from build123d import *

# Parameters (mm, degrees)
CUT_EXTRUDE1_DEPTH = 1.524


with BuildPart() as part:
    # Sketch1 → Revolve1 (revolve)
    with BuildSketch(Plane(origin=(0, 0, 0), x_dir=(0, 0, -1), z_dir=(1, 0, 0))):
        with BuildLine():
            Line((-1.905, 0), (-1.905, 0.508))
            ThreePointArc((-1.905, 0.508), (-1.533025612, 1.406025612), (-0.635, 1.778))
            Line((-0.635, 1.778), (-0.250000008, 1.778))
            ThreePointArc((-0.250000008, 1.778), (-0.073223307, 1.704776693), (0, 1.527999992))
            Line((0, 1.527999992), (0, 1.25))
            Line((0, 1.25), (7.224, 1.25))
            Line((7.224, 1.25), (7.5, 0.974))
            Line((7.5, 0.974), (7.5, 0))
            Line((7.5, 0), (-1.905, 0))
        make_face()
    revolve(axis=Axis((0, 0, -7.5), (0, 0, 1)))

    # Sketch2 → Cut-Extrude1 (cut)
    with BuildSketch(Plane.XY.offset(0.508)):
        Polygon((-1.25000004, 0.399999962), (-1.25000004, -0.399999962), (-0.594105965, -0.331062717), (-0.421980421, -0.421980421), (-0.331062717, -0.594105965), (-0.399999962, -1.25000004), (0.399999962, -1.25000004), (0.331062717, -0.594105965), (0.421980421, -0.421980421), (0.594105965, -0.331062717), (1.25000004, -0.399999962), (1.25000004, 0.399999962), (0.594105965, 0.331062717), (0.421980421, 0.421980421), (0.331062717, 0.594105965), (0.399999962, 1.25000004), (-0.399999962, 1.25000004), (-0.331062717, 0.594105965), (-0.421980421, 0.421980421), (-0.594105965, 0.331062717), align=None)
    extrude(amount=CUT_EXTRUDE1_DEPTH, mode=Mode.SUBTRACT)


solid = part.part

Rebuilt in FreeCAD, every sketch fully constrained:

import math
import FreeCAD as App
import Part
import Sketcher
Q = App.Units.Quantity


def add_polygon(sketch, points):
    """Adds a closed chain of lines whose ends are joined by coincident constraints."""
    first, n = sketch.GeometryCount, len(points)
    for a, b in zip(points, points[1:] + points[:1]):
        sketch.addGeometry(Part.LineSegment(App.Vector(*a, 0), App.Vector(*b, 0)), False)
    for i in range(n):
        sketch.addConstraint(Sketcher.Constraint("Coincident", first + i, 2, first + (i + 1) % n, 1))

doc = App.newDocument("Part")
params = doc.addObject("Spreadsheet::Sheet", "Params")
for row, (alias, value) in enumerate([
    ("sketch1_radius", "0.05 in"),
    ("sketch1_width", "0.02 in"),
    ("revolution_angle", "360 deg"),
    ("pocket1_length", "0.06 in"),
], start=1):
    params.set(f"A{row}", alias)
    params.set(f"B{row}", "=" + value)
    params.setAlias(f"B{row}", alias)

body = doc.addObject("PartDesign::Body", "Body")

# Sketch on YZ plane
sketch1 = body.newObject("Sketcher::SketchObject", "Sketch")
sketch1.AttachmentSupport = (doc.getObject("YZ_Plane"), [""])
sketch1.MapMode = "FlatFace"
sketch1.addGeometry([
    Part.LineSegment(App.Vector(0.51, 1.91, 0), App.Vector(0, 1.91, 0)),  # 0
    Part.LineSegment(App.Vector(0, 1.91, 0), App.Vector(0, -7.5, 0)),  # 1
    Part.LineSegment(App.Vector(0, -7.5, 0), App.Vector(0.97, -7.5, 0)),  # 2
    Part.LineSegment(App.Vector(0.97, -7.5, 0), App.Vector(1.25, -7.22, 0)),  # 3
    Part.LineSegment(App.Vector(1.25, -7.22, 0), App.Vector(1.25, 0, 0)),  # 4
    Part.LineSegment(App.Vector(1.25, 0, 0), App.Vector(1.53, 0, 0)),  # 5
    Part.ArcOfCircle(Part.Circle(App.Vector(1.53, 0.25, 0), App.Vector(0, 0, 1), 0.25), math.radians(-90), math.radians(0)),  # 6
    Part.LineSegment(App.Vector(1.78, 0.25, 0), App.Vector(1.78, 0.64, 0)),  # 7
    Part.ArcOfCircle(Part.Circle(App.Vector(0.51, 0.64, 0), App.Vector(0, 0, 1), 1.27), math.radians(0), math.radians(90)),  # 8
], False)
sketch1.addConstraint([
    Sketcher.Constraint("Coincident", 0, 2, 1, 1),
    Sketcher.Constraint("Coincident", 1, 2, 2, 1),
    Sketcher.Constraint("Coincident", 2, 2, 3, 1),
    Sketcher.Constraint("Coincident", 3, 2, 4, 1),
    Sketcher.Constraint("Coincident", 4, 2, 5, 1),
    Sketcher.Constraint("Tangent", 5, 2, 6, 1),
    Sketcher.Constraint("Tangent", 6, 2, 7, 1),
    Sketcher.Constraint("Tangent", 7, 2, 8, 1),
    Sketcher.Constraint("Tangent", 8, 2, 0, 1),
    Sketcher.Constraint("Horizontal", 0),
    Sketcher.Constraint("Vertical", 1),
    Sketcher.Constraint("Horizontal", 2),
    Sketcher.Constraint("Vertical", 4),
    Sketcher.Constraint("Horizontal", 5),
    Sketcher.Constraint("Vertical", 7),
    Sketcher.Constraint("PointOnObject", 0, 2, -2),
    Sketcher.Constraint("PointOnObject", 4, 2, -1),
    Sketcher.Constraint("Radius", 8, Q("0.05 in")),
    Sketcher.Constraint("Angle", 3, Q("45 deg")),
    Sketcher.Constraint("DistanceX", 0, 2, 0, 1, Q("0.02 in")),
    Sketcher.Constraint("Radius", 6, 0.25),
    Sketcher.Constraint("DistanceY", -1, 1, 8, 3, Q("0.025 in")),
    Sketcher.Constraint("DistanceX", 2, 1, 2, 2, 0.974),
    Sketcher.Constraint("DistanceX", 5, 1, 5, 2, 0.278),
    Sketcher.Constraint("DistanceY", 1, 2, 1, 1, 9.405),
])
sketch1.setExpression("Constraints[17]", "Params.sketch1_radius")
sketch1.setExpression("Constraints[19]", "Params.sketch1_width")
revolution = body.newObject("PartDesign::Revolution", "Revolution")
revolution.Profile = sketch1
revolution.ReferenceAxis = (sketch1, ["V_Axis"])
revolution.setExpression("Angle", "Params.revolution_angle")

# Sketch on XY plane
sketch2 = body.newObject("Sketcher::SketchObject", "Sketch001")
sketch2.AttachmentSupport = (doc.getObject("XY_Plane"), [""])
sketch2.MapMode = "FlatFace"
sketch2.AttachmentOffset = App.Placement(App.Vector(0, 0, 0.02 * 25.4), App.Rotation())
add_polygon(sketch2, [(-1.25, 0.4), (-1.25, -0.4), (-0.59, -0.33), (-0.42, -0.42), (-0.33, -0.59), (-0.4, -1.25), (0.4, -1.25), (0.33, -0.59), (0.42, -0.42), (0.59, -0.33), (1.25, -0.4), (1.25, 0.4), (0.59, 0.33), (0.42, 0.42), (0.33, 0.59), (0.4, 1.25), (-0.4, 1.25), (-0.33, 0.59), (-0.42, 0.42), (-0.59, 0.33)])  # lines 0-19
sketch2.addConstraint([
    Sketcher.Constraint("Vertical", 0),
    Sketcher.Constraint("Horizontal", 5),
    Sketcher.Constraint("Vertical", 10),
    Sketcher.Constraint("Horizontal", 15),
    Sketcher.Constraint("Symmetric", 0, 2, 10, 2, -1, 1),
    Sketcher.Constraint("Symmetric", 1, 2, 11, 2, -1, 1),
    Sketcher.Constraint("Symmetric", 2, 2, 12, 2, -1, 1),
    Sketcher.Constraint("Symmetric", 3, 2, 13, 2, -1, 1),
    Sketcher.Constraint("Symmetric", 4, 2, 14, 2, -1, 1),
    Sketcher.Constraint("Symmetric", 6, 2, 16, 2, -1, 1),
    Sketcher.Constraint("Symmetric", 7, 2, 17, 2, -1, 1),
    Sketcher.Constraint("Symmetric", 8, 2, 18, 2, -1, 1),
    Sketcher.Constraint("Symmetric", 3, 2, 6, 2, -2),
    Sketcher.Constraint("Symmetric", 2, 2, 7, 2, -2),
    Sketcher.Constraint("Symmetric", 1, 2, 8, 2, -2),
    Sketcher.Constraint("Perpendicular", 1, 6),
    Sketcher.Constraint("Perpendicular", 2, 7),
    Sketcher.Constraint("Perpendicular", 4, 9),
    Sketcher.Constraint("Perpendicular", 11, 16),
    Sketcher.Constraint("Perpendicular", 14, 19),
    Sketcher.Constraint("Horizontal", 0, 2, 9, 2),
    Sketcher.Constraint("Equal", 15, 0),
    Sketcher.Constraint("Equal", 2, 3),
    Sketcher.Constraint("Equal", 1, 4),
    Sketcher.Constraint("Angle", 1, Q("6 deg")),
    Sketcher.Constraint("DistanceX", 5, 1, 5, 2, 0.8),
    Sketcher.Constraint("DistanceX", 0, 2, -1, 1, 1.25),
    Sketcher.Constraint("Distance", 2, 0.194662),
    Sketcher.Constraint("DistanceX", 2, 2, -1, 1, 0.42198),
])
pocket1 = body.newObject("PartDesign::Pocket", "Pocket")
pocket1.Profile = sketch2
pocket1.setExpression("Length", "Params.pocket1_length")
pocket1.Reversed = True

doc.recompute()
